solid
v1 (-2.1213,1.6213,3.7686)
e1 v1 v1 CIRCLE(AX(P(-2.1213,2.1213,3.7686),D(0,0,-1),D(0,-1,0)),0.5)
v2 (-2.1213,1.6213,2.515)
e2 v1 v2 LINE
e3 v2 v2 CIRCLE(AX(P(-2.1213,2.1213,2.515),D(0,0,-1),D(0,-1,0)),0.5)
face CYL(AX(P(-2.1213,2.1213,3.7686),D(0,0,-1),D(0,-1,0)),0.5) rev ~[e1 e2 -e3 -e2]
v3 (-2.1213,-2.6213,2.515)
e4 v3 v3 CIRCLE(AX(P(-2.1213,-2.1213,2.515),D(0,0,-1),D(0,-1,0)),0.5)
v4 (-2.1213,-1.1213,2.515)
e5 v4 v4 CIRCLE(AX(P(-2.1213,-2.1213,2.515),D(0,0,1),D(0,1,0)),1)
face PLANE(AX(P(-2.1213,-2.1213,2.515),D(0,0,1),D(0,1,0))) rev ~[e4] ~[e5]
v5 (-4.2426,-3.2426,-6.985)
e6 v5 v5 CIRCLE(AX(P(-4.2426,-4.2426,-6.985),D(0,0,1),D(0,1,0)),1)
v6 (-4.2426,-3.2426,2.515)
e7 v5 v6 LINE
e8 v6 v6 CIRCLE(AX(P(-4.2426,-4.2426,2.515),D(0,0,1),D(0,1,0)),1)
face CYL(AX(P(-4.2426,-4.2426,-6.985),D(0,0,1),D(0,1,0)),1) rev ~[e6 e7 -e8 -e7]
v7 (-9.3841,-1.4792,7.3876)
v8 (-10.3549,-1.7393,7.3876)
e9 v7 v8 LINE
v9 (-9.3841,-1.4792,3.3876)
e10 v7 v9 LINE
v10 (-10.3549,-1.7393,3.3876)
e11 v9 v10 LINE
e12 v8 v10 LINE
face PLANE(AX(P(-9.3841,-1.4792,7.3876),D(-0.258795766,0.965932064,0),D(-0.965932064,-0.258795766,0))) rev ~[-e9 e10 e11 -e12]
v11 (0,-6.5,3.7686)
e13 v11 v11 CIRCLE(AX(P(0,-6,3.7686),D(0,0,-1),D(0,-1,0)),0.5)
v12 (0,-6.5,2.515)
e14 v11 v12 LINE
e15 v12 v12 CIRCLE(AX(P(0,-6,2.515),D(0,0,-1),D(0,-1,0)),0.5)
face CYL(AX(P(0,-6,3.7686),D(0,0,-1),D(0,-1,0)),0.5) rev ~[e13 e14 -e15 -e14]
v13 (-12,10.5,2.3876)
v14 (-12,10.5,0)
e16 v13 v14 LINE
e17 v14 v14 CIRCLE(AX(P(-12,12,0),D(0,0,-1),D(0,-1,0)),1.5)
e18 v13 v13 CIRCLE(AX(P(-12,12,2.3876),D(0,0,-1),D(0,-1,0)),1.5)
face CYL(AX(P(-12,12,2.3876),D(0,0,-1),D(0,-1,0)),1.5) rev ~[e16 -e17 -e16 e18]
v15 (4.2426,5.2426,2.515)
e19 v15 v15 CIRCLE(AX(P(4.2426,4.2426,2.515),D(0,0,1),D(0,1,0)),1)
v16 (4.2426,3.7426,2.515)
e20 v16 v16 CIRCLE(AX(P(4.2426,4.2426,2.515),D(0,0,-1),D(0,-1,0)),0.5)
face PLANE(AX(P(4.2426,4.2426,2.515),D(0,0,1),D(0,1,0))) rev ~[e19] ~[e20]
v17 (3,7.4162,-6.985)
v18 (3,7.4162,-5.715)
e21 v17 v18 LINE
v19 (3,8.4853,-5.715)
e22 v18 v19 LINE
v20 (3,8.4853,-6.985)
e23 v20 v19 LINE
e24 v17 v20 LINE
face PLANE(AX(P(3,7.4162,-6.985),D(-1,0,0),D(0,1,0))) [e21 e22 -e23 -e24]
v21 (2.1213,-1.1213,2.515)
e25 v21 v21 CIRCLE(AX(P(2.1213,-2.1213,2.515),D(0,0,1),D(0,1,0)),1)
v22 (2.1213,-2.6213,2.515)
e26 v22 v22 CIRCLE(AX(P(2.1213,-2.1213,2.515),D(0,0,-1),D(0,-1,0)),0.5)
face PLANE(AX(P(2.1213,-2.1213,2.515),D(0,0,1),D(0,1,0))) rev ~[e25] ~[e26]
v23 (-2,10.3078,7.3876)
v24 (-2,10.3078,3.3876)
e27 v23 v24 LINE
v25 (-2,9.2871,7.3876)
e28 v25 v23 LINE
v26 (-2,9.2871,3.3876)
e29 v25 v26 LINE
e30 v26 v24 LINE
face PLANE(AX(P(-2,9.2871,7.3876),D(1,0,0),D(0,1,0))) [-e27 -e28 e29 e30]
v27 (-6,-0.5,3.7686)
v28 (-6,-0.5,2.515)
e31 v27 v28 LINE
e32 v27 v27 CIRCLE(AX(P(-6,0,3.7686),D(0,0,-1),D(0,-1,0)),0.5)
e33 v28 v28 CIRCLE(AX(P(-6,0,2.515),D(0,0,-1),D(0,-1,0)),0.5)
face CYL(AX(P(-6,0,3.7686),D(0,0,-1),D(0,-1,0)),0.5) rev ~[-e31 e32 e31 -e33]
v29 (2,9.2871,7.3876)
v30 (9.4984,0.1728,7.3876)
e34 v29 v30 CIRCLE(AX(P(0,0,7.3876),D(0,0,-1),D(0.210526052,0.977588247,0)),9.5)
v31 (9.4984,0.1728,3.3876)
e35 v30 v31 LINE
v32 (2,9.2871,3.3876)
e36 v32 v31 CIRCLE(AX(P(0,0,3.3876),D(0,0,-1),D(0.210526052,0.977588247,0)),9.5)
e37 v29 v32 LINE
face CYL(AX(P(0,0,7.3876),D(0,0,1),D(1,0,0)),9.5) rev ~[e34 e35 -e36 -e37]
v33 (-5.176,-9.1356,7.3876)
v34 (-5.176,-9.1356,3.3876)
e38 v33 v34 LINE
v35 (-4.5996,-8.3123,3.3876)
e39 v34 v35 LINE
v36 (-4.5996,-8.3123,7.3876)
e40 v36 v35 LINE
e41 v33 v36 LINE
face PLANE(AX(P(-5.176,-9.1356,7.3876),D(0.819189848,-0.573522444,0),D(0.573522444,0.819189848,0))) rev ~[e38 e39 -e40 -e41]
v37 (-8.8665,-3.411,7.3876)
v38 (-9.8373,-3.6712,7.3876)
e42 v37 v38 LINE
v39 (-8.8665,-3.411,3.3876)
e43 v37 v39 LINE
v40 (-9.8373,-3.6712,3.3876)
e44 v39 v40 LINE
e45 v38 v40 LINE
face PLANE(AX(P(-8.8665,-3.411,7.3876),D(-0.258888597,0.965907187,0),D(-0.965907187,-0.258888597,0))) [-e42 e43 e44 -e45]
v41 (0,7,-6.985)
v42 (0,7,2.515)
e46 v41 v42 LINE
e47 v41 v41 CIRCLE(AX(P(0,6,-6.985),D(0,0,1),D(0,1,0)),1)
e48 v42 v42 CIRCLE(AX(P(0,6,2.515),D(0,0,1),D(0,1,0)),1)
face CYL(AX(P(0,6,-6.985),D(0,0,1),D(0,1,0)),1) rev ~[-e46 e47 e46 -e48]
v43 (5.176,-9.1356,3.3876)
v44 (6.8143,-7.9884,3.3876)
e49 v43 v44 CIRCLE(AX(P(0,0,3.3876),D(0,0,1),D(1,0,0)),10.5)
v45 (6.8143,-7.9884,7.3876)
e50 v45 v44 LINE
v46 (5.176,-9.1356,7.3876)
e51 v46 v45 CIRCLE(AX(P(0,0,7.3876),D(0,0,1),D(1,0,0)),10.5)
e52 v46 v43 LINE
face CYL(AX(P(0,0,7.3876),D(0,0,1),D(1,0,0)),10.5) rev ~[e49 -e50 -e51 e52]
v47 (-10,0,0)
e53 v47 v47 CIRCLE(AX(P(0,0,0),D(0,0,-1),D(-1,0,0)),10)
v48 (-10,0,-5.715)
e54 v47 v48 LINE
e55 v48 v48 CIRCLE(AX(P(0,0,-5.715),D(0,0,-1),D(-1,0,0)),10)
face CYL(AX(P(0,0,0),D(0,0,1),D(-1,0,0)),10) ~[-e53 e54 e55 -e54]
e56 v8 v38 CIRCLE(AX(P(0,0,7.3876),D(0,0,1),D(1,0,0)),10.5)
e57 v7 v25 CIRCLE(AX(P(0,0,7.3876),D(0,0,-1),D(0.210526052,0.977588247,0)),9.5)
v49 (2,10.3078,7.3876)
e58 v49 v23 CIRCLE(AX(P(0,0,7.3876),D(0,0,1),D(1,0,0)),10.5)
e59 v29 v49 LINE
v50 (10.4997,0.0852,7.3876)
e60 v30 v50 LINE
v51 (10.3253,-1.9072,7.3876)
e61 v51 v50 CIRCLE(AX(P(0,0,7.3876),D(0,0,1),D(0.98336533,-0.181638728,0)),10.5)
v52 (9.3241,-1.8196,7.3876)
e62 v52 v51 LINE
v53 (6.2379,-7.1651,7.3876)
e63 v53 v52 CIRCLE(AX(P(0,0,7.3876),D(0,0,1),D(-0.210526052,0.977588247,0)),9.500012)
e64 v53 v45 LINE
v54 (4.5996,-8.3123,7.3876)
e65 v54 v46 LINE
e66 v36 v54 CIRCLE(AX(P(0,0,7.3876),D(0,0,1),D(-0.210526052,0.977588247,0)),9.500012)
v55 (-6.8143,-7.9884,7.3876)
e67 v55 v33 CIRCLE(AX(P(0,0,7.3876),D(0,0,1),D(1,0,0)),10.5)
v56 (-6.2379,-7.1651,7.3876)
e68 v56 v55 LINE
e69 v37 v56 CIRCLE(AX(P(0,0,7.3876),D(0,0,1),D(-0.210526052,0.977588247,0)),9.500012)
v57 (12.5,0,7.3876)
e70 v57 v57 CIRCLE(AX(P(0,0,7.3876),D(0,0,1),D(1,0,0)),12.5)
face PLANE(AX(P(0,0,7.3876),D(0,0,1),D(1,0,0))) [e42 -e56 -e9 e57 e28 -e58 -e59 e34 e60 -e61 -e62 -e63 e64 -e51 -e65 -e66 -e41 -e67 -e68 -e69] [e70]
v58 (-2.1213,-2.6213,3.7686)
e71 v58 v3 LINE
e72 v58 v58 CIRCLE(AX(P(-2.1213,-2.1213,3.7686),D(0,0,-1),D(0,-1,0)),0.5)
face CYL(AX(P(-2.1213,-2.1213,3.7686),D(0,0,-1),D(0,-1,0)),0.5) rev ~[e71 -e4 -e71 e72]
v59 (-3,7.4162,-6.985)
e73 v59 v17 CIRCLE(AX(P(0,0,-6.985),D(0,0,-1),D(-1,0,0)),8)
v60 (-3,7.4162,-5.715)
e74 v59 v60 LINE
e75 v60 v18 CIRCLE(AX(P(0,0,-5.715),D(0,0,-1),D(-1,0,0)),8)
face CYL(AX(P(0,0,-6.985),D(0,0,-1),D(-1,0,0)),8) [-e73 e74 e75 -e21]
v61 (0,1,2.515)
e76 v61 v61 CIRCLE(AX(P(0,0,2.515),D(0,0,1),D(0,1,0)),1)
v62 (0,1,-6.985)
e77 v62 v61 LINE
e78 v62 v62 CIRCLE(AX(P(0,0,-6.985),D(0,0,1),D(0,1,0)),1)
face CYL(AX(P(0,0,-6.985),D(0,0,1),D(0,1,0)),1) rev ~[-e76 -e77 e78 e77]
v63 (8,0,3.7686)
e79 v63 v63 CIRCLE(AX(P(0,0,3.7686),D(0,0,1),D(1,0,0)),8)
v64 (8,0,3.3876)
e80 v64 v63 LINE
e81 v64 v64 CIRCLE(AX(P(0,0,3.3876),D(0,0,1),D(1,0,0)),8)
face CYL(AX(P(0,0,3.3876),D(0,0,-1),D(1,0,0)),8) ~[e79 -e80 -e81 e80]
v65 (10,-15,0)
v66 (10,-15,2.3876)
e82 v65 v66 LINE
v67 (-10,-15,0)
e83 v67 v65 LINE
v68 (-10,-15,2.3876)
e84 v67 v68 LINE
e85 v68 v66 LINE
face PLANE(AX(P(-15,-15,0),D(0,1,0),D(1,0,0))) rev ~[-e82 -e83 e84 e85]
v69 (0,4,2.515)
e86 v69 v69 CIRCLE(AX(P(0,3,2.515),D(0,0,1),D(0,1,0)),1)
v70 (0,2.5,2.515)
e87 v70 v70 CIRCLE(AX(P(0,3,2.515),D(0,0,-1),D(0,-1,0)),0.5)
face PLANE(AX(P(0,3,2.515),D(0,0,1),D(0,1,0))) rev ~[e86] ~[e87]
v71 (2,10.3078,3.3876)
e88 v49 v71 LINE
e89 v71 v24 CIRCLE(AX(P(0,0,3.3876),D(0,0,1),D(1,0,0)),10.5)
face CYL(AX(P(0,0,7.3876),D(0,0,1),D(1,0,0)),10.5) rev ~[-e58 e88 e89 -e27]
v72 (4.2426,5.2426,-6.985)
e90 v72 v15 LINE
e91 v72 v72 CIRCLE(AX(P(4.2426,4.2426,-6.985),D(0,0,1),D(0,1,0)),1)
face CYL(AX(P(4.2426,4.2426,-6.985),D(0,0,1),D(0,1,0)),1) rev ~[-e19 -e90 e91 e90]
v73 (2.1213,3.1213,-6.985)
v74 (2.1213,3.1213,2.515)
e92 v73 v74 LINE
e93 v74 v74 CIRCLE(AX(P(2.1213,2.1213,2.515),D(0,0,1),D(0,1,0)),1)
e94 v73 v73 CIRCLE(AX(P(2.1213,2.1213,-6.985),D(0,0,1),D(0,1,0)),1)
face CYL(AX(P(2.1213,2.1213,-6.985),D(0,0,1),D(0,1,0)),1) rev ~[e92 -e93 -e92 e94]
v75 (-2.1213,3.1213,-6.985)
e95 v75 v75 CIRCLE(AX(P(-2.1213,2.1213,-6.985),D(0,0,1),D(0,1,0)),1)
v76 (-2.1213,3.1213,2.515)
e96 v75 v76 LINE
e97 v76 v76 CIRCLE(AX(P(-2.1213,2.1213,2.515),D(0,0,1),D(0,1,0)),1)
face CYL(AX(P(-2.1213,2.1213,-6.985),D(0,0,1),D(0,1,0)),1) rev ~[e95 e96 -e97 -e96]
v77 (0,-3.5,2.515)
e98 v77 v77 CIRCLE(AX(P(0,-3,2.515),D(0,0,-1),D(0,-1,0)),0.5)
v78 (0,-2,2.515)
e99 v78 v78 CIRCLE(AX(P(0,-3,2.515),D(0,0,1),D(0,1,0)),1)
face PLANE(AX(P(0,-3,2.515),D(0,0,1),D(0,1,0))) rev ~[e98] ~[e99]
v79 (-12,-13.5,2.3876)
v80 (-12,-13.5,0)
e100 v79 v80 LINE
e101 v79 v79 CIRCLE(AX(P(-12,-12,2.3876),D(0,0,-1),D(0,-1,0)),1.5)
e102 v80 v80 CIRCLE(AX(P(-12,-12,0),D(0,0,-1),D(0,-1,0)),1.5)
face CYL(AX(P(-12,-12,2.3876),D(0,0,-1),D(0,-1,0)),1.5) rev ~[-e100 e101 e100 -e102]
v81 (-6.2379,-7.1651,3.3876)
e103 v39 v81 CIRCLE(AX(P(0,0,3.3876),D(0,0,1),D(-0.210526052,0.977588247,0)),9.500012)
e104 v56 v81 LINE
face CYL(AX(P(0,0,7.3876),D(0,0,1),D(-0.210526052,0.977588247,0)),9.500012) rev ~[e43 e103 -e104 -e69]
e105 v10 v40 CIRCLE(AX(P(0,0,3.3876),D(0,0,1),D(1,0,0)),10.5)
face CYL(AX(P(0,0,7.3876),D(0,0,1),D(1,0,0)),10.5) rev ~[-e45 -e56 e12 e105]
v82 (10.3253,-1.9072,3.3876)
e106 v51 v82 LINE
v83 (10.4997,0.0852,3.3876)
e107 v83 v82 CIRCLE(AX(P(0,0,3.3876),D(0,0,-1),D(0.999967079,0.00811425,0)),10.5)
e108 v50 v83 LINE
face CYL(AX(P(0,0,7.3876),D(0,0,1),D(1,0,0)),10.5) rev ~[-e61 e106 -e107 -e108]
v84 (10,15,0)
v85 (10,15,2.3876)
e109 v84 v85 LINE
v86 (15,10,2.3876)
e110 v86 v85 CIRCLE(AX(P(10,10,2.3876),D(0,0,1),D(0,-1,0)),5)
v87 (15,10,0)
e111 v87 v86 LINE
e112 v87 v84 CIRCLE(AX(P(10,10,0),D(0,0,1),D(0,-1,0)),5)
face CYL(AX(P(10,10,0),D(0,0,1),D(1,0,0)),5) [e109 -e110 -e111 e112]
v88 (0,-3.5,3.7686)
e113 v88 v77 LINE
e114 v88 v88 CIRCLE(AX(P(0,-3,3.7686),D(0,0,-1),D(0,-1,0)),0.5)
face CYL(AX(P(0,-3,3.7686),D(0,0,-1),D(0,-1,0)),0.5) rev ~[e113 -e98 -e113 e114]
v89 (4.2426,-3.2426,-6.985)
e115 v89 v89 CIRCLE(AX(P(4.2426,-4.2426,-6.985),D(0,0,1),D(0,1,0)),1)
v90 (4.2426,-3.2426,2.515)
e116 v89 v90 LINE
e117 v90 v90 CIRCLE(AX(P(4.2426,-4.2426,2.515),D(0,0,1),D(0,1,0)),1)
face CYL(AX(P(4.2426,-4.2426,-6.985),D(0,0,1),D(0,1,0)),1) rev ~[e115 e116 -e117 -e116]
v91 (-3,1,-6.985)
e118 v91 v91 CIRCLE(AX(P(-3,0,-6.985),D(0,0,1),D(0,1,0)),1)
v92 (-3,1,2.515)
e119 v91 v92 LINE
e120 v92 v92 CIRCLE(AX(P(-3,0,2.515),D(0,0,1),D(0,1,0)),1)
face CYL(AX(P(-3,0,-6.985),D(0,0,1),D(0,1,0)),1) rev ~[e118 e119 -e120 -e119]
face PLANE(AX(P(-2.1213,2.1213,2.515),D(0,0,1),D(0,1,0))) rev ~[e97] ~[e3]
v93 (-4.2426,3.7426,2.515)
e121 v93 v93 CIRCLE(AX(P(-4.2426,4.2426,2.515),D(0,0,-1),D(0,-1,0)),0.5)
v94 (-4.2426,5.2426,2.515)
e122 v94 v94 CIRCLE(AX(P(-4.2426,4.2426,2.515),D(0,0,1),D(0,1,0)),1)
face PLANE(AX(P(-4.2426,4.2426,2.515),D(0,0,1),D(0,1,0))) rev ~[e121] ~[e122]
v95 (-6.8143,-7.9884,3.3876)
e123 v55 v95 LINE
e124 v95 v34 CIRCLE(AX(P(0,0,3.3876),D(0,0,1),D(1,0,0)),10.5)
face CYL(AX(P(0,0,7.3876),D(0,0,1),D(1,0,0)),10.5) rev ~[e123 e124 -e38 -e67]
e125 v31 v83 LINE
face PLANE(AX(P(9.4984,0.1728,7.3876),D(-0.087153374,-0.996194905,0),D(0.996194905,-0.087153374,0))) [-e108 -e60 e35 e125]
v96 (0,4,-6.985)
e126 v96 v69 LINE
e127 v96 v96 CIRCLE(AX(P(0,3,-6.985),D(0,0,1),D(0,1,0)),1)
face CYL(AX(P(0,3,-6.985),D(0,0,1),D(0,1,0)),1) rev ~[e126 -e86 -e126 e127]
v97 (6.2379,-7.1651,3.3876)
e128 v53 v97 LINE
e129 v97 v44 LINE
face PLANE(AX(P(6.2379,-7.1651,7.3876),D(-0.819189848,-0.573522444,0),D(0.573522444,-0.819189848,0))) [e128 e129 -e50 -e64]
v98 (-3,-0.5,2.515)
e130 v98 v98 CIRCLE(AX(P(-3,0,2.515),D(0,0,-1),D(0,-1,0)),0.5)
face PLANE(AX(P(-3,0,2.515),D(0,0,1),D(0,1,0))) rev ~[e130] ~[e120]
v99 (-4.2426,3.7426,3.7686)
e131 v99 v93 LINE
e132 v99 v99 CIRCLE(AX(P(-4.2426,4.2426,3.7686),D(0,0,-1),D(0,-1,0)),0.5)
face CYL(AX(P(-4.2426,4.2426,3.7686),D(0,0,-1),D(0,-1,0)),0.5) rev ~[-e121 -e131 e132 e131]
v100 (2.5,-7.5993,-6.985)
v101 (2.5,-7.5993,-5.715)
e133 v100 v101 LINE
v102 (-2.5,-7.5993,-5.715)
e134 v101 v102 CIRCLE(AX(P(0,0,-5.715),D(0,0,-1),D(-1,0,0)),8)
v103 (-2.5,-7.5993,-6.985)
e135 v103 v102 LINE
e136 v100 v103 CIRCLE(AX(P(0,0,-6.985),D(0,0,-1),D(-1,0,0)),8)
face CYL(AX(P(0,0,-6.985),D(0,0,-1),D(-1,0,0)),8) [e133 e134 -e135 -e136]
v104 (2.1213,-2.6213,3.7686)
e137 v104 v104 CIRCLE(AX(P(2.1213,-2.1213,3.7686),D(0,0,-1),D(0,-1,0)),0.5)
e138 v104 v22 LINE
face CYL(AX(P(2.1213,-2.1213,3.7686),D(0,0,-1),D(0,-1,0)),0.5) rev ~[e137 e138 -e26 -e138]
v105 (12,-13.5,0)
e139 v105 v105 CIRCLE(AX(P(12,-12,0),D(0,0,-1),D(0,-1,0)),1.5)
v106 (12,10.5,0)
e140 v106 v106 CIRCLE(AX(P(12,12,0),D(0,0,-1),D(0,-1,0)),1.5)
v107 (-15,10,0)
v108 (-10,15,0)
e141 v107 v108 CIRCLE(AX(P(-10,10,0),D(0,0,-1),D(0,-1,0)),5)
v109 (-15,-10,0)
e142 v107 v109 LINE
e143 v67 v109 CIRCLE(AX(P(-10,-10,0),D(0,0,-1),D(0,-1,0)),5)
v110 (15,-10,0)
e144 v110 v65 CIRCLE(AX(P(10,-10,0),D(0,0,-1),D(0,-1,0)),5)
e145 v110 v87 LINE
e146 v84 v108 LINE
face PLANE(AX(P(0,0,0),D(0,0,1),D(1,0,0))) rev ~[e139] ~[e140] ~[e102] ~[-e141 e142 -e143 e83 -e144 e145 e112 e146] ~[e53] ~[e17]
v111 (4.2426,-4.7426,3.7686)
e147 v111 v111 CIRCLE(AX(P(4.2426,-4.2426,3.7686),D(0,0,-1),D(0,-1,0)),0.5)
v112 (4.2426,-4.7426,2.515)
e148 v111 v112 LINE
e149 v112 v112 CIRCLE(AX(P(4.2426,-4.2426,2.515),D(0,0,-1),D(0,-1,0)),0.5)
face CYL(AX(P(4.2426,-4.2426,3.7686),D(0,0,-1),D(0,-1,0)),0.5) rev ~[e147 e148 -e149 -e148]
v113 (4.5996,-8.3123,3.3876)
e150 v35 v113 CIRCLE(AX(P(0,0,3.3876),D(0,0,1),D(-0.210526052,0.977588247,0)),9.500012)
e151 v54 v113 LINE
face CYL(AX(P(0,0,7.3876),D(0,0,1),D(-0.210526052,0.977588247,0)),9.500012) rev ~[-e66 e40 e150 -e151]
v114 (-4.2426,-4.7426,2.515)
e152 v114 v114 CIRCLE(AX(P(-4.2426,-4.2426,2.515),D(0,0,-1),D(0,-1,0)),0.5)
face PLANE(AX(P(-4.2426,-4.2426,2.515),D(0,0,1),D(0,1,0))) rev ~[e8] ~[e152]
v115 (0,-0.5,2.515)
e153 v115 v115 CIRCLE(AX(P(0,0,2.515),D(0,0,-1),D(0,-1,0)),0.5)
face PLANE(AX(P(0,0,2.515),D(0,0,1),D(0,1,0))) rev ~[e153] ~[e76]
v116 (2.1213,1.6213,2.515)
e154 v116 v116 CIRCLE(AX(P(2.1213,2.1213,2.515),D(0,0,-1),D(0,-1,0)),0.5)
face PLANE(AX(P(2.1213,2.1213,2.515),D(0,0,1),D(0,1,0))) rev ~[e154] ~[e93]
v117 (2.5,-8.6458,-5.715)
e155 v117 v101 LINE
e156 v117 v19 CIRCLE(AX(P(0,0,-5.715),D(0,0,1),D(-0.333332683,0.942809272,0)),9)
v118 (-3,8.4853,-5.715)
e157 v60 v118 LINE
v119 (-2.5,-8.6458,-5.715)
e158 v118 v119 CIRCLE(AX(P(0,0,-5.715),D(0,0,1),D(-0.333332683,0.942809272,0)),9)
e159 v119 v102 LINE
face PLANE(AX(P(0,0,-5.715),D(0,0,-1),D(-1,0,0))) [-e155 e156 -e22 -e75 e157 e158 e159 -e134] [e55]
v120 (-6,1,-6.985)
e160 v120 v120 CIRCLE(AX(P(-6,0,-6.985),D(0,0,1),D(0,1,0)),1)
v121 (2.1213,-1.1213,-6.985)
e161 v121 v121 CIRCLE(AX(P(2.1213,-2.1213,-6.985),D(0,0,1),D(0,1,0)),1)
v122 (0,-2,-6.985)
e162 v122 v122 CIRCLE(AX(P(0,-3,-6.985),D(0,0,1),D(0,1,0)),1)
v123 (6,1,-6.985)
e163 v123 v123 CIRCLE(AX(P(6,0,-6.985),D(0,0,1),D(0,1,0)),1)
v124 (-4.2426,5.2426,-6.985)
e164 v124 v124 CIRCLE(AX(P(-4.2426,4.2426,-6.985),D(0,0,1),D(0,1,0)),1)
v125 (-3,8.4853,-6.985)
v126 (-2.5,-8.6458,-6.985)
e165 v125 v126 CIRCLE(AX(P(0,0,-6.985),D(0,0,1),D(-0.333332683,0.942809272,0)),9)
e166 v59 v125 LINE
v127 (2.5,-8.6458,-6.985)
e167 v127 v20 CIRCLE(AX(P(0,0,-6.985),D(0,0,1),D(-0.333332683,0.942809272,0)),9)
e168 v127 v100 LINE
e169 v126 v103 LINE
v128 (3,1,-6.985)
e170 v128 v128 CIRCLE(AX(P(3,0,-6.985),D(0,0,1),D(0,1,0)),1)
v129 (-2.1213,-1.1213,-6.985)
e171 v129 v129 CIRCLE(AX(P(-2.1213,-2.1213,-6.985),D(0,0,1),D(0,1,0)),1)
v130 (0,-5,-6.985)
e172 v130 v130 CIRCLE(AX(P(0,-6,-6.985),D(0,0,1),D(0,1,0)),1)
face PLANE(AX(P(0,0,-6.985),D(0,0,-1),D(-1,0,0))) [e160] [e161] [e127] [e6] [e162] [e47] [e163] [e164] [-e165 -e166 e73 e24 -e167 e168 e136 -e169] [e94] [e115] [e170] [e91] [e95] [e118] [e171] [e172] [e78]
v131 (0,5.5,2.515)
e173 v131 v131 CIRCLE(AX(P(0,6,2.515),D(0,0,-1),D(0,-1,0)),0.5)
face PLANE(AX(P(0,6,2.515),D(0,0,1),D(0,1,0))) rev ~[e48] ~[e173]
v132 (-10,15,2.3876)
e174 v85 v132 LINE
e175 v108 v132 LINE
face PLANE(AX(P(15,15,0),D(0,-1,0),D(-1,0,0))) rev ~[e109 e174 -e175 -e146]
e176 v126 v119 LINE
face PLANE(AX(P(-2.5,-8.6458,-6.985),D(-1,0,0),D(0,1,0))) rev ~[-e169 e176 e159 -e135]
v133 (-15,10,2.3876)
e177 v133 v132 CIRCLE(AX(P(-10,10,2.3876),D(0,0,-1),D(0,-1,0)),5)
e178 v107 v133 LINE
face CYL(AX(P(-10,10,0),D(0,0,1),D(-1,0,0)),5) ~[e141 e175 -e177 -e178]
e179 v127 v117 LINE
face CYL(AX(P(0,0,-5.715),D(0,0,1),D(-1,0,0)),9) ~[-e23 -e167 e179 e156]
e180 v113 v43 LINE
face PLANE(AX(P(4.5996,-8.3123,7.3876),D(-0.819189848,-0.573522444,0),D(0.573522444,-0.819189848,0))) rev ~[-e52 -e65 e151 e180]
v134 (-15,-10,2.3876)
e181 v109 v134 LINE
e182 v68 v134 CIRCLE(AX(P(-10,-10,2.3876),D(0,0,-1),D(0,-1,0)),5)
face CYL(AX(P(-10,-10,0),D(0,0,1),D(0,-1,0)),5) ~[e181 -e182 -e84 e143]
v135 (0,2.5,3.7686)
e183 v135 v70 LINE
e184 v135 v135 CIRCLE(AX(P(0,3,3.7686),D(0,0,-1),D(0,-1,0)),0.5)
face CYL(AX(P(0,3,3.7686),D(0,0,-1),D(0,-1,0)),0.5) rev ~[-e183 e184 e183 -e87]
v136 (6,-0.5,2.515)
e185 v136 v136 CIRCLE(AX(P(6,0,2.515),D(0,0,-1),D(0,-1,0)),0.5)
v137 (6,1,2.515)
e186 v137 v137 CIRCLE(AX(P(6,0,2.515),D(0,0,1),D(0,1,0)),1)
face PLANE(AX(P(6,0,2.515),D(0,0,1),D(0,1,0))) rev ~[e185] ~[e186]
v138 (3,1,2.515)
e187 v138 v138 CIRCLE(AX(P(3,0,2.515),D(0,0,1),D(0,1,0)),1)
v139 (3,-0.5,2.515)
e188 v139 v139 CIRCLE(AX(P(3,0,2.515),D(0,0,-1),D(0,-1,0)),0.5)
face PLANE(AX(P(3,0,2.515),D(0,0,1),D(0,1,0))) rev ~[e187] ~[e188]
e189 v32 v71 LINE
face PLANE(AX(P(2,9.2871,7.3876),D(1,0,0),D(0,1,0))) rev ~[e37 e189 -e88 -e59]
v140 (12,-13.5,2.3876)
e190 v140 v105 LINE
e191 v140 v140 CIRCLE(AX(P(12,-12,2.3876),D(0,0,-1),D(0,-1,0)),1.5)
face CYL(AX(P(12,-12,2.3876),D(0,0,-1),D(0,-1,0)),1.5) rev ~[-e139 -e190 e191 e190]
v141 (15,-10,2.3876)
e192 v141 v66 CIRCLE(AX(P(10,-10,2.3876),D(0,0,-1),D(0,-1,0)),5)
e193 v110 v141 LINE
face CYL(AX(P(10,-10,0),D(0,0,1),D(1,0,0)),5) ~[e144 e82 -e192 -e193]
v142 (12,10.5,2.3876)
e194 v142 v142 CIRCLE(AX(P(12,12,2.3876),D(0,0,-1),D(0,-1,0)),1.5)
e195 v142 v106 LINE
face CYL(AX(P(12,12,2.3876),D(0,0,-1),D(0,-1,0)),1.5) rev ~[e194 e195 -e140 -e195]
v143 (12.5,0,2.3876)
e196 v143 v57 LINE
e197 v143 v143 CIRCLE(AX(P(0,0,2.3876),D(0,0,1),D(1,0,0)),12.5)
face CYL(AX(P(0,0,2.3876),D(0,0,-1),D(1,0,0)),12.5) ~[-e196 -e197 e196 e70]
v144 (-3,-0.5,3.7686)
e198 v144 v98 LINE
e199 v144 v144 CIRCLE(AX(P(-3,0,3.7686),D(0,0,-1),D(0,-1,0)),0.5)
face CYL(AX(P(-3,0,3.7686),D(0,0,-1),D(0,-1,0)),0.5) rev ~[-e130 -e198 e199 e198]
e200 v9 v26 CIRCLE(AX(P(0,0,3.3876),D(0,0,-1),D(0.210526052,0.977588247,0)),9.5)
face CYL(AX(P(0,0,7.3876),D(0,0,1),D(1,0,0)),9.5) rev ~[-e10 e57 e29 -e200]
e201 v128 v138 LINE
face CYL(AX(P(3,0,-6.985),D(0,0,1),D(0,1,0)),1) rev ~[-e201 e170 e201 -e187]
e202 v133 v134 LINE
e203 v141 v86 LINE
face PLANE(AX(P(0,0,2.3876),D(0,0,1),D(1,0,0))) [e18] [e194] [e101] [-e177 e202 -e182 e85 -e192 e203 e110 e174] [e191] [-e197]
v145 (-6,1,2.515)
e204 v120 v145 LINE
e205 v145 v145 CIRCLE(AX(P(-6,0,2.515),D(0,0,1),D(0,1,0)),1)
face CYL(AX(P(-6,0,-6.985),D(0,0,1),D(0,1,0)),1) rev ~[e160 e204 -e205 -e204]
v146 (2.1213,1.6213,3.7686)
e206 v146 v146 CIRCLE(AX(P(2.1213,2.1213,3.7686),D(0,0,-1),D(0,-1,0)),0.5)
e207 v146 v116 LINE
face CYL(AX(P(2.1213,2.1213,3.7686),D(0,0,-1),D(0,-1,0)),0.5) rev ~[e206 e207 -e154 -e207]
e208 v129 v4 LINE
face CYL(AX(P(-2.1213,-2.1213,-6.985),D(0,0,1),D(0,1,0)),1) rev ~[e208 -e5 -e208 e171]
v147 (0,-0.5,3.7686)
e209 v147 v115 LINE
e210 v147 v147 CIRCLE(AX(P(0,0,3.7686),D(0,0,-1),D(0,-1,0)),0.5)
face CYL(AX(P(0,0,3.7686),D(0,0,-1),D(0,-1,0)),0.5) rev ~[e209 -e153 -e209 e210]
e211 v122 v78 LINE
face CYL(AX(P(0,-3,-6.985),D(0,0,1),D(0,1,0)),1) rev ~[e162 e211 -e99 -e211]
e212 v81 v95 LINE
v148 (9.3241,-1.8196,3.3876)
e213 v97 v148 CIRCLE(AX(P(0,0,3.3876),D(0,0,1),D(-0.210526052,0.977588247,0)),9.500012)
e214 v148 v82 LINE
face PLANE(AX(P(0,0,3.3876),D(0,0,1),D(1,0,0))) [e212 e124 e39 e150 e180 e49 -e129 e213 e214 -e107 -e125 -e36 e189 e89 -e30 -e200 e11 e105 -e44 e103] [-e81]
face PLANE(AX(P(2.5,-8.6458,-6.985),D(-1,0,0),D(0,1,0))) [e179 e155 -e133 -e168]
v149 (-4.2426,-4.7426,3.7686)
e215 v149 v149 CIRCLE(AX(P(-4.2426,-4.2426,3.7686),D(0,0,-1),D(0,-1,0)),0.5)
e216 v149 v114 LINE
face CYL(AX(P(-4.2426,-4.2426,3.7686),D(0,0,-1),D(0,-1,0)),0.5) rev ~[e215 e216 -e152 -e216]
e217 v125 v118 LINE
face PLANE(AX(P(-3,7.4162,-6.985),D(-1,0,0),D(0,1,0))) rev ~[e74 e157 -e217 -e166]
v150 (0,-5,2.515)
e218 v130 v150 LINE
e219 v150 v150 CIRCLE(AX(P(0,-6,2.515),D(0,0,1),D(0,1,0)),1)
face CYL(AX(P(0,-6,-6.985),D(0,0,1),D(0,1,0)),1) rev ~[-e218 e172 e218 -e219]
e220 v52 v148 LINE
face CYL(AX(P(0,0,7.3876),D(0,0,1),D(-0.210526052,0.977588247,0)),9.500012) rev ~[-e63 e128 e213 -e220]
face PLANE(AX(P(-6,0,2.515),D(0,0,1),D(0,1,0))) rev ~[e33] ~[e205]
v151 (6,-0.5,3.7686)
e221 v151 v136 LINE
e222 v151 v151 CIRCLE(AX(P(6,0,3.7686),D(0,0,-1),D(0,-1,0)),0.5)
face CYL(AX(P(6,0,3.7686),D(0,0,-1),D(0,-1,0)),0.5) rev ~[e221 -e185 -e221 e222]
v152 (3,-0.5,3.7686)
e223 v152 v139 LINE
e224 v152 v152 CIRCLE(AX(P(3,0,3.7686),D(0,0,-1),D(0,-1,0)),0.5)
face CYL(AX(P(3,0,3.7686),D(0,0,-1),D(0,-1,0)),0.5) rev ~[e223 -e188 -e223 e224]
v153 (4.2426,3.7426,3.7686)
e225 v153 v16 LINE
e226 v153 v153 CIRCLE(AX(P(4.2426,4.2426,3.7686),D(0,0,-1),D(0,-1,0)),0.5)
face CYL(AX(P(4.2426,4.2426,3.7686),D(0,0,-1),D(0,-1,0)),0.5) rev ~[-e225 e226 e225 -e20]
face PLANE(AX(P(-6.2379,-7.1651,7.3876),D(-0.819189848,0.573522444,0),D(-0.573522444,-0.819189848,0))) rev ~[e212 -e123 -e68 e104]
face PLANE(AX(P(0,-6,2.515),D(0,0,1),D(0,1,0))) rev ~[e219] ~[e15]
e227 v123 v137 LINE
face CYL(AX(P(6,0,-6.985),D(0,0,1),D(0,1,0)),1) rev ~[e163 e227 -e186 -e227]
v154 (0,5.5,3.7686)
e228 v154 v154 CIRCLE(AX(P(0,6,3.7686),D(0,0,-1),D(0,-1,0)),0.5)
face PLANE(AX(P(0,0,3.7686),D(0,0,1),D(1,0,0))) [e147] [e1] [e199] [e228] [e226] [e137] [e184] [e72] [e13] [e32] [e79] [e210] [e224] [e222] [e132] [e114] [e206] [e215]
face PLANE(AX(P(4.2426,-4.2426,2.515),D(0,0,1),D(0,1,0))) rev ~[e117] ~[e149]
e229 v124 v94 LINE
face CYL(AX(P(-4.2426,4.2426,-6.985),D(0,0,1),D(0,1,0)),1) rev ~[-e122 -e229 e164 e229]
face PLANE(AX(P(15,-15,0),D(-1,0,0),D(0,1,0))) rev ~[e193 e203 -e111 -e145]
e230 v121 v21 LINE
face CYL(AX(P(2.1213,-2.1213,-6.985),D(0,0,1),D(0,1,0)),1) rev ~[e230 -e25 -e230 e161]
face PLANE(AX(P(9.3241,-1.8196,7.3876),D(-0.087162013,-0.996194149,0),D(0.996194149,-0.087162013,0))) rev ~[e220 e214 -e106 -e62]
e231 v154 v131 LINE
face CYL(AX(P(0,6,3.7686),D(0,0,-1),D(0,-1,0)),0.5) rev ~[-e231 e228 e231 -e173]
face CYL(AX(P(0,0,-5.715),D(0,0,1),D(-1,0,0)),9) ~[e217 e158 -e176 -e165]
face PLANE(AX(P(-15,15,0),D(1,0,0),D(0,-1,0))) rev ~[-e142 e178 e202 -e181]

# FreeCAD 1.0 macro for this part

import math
import FreeCAD as App
import Part
import Sketcher

V = App.Vector
Q = App.Units.Quantity


def edges_at(feature, points):
    """Names of the edges that pass closest to the given points."""
    edges = feature.Shape.Edges
    near = lambda p: min(range(len(edges)), key=lambda i: edges[i].distToShape(Part.Vertex(*p))[0])
    return sorted({f"Edge{near(p) + 1}" for p in points})


def add_polygon(sketch, points):
    """Adds a closed chain of lines whose ends are joined by coincident constraints."""
    first, n = sketch.GeometryCount, len(points)
    for a, b in zip(points, points[1:] + points[:1]):
        sketch.addGeometry(Part.LineSegment(App.Vector(*a, 0), App.Vector(*b, 0)), False)
    for i in range(n):
        sketch.addConstraint(Sketcher.Constraint("Coincident", first + i, 2, first + (i + 1) % n, 1))

doc = App.newDocument("Part")
body = doc.addObject("PartDesign::Body", "Body")

sketch1 = body.newObject("Sketcher::SketchObject", "Sketch")
sketch1.AttachmentSupport = (doc.getObject("XY_Plane"), [""])
sketch1.MapMode = "FlatFace"
add_polygon(sketch1, [(15, -15), (15, 15), (-15, 15), (-15, -15)])
sketch1.addConstraint([
    Sketcher.Constraint("Vertical", 0),
    Sketcher.Constraint("Horizontal", 1),
    Sketcher.Constraint("Vertical", 2),
    Sketcher.Constraint("Horizontal", 3),
    Sketcher.Constraint("Symmetric", 0, 2, 2, 2, -1, 1),
    Sketcher.Constraint("Equal", 3, 0),
    Sketcher.Constraint("DistanceX", 1, 2, 1, 1, Q("30 mm")),
])
pad1 = body.newObject("PartDesign::Pad", "Pad")
pad1.Profile = sketch1
pad1.Length = 2.3876
doc.recompute()

fillet = body.newObject("PartDesign::Fillet", "Fillet")
fillet.Base = (pad1, edges_at(pad1, [
    (15, 15, 1.194),
    (-15, 15, 1.194),
    (-15, -15, 1.194),
    (15, -15, 1.194),
]))
fillet.Radius = 5

sketch2 = body.newObject("Sketcher::SketchObject", "Sketch001")
sketch2.AttachmentSupport = (doc.getObject("XY_Plane"), [""])
sketch2.MapMode = "FlatFace"
sketch2.AttachmentOffset = App.Placement(V(0, 0, 2.3876), App.Rotation())
sketch2.addGeometry([
    Part.Circle(V(-12, 12, 0), V(0, 0, 1), 1.5),
    Part.Circle(V(12, 12, 0), V(0, 0, 1), 1.5),
    Part.Circle(V(12, -12, 0), V(0, 0, 1), 1.5),
    Part.Circle(V(-12, -12, 0), V(0, 0, 1), 1.5),
], False)
sketch2.addConstraint([
    Sketcher.Constraint("Equal", 0, 1),
    Sketcher.Constraint("Equal", 1, 2),
    Sketcher.Constraint("Equal", 2, 3),
    Sketcher.Constraint("Symmetric", 0, 3, 2, 3, -1, 1),
    Sketcher.Constraint("Symmetric", 1, 3, 3, 3, -1, 1),
    Sketcher.Constraint("Symmetric", 0, 3, 1, 3, -2),
    Sketcher.Constraint("Diameter", 0, Q("3 mm")),
    Sketcher.Constraint("DistanceX", 0, 3, -1, 1, Q("12 mm")),
    Sketcher.Constraint("DistanceY", -1, 1, 0, 3, Q("12 mm")),
])
doc.recompute()
hole = body.newObject("PartDesign::Hole", "Hole")
hole.Profile = sketch2
hole.ThreadType = "None"
hole.Diameter = 3
hole.DepthType = "ThroughAll"

sketch3 = body.newObject("Sketcher::SketchObject", "Sketch002")
sketch3.AttachmentSupport = (doc.getObject("XY_Plane"), [""])
sketch3.MapMode = "FlatFace"
sketch3.AttachmentOffset = App.Placement(V(0, 0, 2.3876), App.Rotation())
sketch3.addGeometry(Part.Circle(V(0, 0, 0), V(0, 0, 1), 12), False)
sketch3.addConstraint([
    Sketcher.Constraint("Coincident", 0, 3, -1, 1),
    Sketcher.Constraint("Diameter", 0, Q("25 mm")),
])
pad2 = body.newObject("PartDesign::Pad", "Pad001")
pad2.Profile = sketch3
pad2.Length = 5

sketch4 = body.newObject("Sketcher::SketchObject", "Sketch003")
sketch4.AttachmentSupport = (doc.getObject("XY_Plane"), [""])
sketch4.MapMode = "FlatFace"
sketch4.AttachmentOffset = App.Placement(V(0, 0, 7.3876), App.Rotation())
sketch4.addGeometry(Part.Circle(V(0, 0, 0), V(0, 0, 1), 10), False)
sketch4.addConstraint([
    Sketcher.Constraint("Coincident", 0, 3, -1, 1),
    Sketcher.Constraint("Diameter", 0, Q("19 mm")),
])
pocket1 = body.newObject("PartDesign::Pocket", "Pocket")
pocket1.Profile = sketch4
pocket1.Length = 4

sketch5 = body.newObject("Sketcher::SketchObject", "Sketch004")
sketch5.AttachmentSupport = (doc.getObject("XY_Plane"), [""])
sketch5.MapMode = "FlatFace"
sketch5.AttachmentOffset = App.Placement(V(0, 0, 7.3876), App.Rotation())
sketch5.addGeometry([
    Part.ArcOfCircle(Part.Circle(V(0, 0, 0), V(0, 0, 1), 9.5), math.radians(78), math.radians(102)),
    Part.LineSegment(V(2, 9.3, 0), V(2, 10.3, 0)),
    Part.ArcOfCircle(Part.Circle(V(0, 0, 0), V(0, 0, 1), 10.5), math.radians(79), math.radians(101)),
    Part.LineSegment(V(-2, 10.3, 0), V(-2, 9.3, 0)),
], False)
sketch5.addConstraint([
    Sketcher.Constraint("Coincident", 0, 1, 1, 1),
    Sketcher.Constraint("Coincident", 1, 2, 2, 1),
    Sketcher.Constraint("Coincident", 2, 2, 3, 1),
    Sketcher.Constraint("Coincident", 3, 2, 0, 2),
    Sketcher.Constraint("Vertical", 1),
    Sketcher.Constraint("Vertical", 3),
    Sketcher.Constraint("Coincident", 0, 3, -1, 1),
    Sketcher.Constraint("Coincident", 2, 3, -1, 1),
    Sketcher.Constraint("Horizontal", 1, 2, 2, 2),
    Sketcher.Constraint("DistanceX", -1, 1, 0, 1, Q("2 mm")),
    Sketcher.Constraint("Radius", 0, Q("9.5 mm")),
    Sketcher.Constraint("Radius", 2, Q("10.5 mm")),
])
pocket2 = body.newObject("PartDesign::Pocket", "Pocket001")
pocket2.Profile = sketch5
pocket2.Length = 4

sketch6 = body.newObject("Sketcher::SketchObject", "Sketch005")
sketch6.AttachmentSupport = (doc.getObject("XY_Plane"), [""])
sketch6.MapMode = "FlatFace"
sketch6.AttachmentOffset = App.Placement(V(0, 0, 7.3876), App.Rotation())
sketch6.addGeometry([
    Part.LineSegment(V(2, 9.3, 0), V(2, 10.3, 0)),
    Part.ArcOfCircle(Part.Circle(V(0, 0, 0), V(0, 0, 1), 10.5), math.radians(79), math.radians(101)),
    Part.LineSegment(V(-2, 10.3, 0), V(-2, 9.3, 0)),
    Part.ArcOfCircle(Part.Circle(V(0, 0, 0), V(0, 0, 1), 9.5), math.radians(102), math.radians(189)),
    Part.LineSegment(V(-9.4, -1.5, 0), V(-10.4, -1.7, 0)),
    Part.ArcOfCircle(Part.Circle(V(0, 0, 0), V(0, 0, 1), 10.5), math.radians(-170.47), math.radians(-159.53)),
    Part.LineSegment(V(-9.8, -3.7, 0), V(-8.9, -3.4, 0)),
    Part.ArcOfCircle(Part.Circle(V(0, 0, 0), V(0, 0, 1), 9.5), math.radians(-159), math.radians(-131)),
    Part.LineSegment(V(-6.2, -7.2, 0), V(-6.8, -8, 0)),
    Part.ArcOfCircle(Part.Circle(V(0, 0, 0), V(0, 0, 1), 10.5), math.radians(-130.46), math.radians(-119.53)),
    Part.LineSegment(V(-5.2, -9.1, 0), V(-4.6, -8.3, 0)),
    Part.ArcOfCircle(Part.Circle(V(0, 0, 0), V(0, 0, 1), 9.5), math.radians(-119), math.radians(-61)),
    Part.LineSegment(V(4.6, -8.3, 0), V(5.2, -9.1, 0)),
    Part.ArcOfCircle(Part.Circle(V(0, 0, 0), V(0, 0, 1), 10.5), math.radians(-60.47), math.radians(-49.54)),
    Part.LineSegment(V(6.8, -8, 0), V(6.2, -7.2, 0)),
    Part.ArcOfCircle(Part.Circle(V(0, 0, 0), V(0, 0, 1), 9.5), math.radians(-49), math.radians(-11)),
    Part.LineSegment(V(9.3, -1.8, 0), V(10.3, -1.9, 0)),
    Part.ArcOfCircle(Part.Circle(V(0, 0, 0), V(0, 0, 1), 10.5), math.radians(-10.47), math.radians(0.46)),
    Part.LineSegment(V(10.5, 0.1, 0), V(9.5, 0.2, 0)),
    Part.ArcOfCircle(Part.Circle(V(0, 0, 0), V(0, 0, 1), 9.5), math.radians(1), math.radians(78)),
], False)
sketch6.addConstraint([
    Sketcher.Constraint("Coincident", 0, 2, 1, 1),
    Sketcher.Constraint("Coincident", 1, 2, 2, 1),
    Sketcher.Constraint("Coincident", 2, 2, 3, 1),
    Sketcher.Constraint("Coincident", 3, 2, 4, 1),
    Sketcher.Constraint("Coincident", 4, 2, 5, 1),
    Sketcher.Constraint("Coincident", 5, 2, 6, 1),
    Sketcher.Constraint("Coincident", 6, 2, 7, 1),
    Sketcher.Constraint("Coincident", 7, 2, 8, 1),
    Sketcher.Constraint("Coincident", 8, 2, 9, 1),
    Sketcher.Constraint("Coincident", 9, 2, 10, 1),
    Sketcher.Constraint("Coincident", 10, 2, 11, 1),
    Sketcher.Constraint("Coincident", 11, 2, 12, 1),
    Sketcher.Constraint("Coincident", 12, 2, 13, 1),
    Sketcher.Constraint("Coincident", 13, 2, 14, 1),
    Sketcher.Constraint("Coincident", 14, 2, 15, 1),
    Sketcher.Constraint("Coincident", 15, 2, 16, 1),
    Sketcher.Constraint("Coincident", 16, 2, 17, 1),
    Sketcher.Constraint("Coincident", 17, 2, 18, 1),
    Sketcher.Constraint("Coincident", 18, 2, 19, 1),
    Sketcher.Constraint("Coincident", 19, 2, 0, 1),
    Sketcher.Constraint("Vertical", 0),
    Sketcher.Constraint("Vertical", 2),
    Sketcher.Constraint("Coincident", 1, 3, -1, 1),
    Sketcher.Constraint("Coincident", 3, 3, -1, 1),
    Sketcher.Constraint("Coincident", 5, 3, -1, 1),
    Sketcher.Constraint("Coincident", 7, 3, -1, 1),
    Sketcher.Constraint("Coincident", 9, 3, -1, 1),
    Sketcher.Constraint("Coincident", 11, 3, -1, 1),
    Sketcher.Constraint("Coincident", 13, 3, -1, 1),
    Sketcher.Constraint("Coincident", 15, 3, -1, 1),
    Sketcher.Constraint("Coincident", 17, 3, -1, 1),
    Sketcher.Constraint("Coincident", 19, 3, -1, 1),
    Sketcher.Constraint("Equal", 1, 5),
    Sketcher.Constraint("Equal", 3, 7),
    Sketcher.Constraint("Equal", 5, 9),
    Sketcher.Constraint("Equal", 7, 11),
    Sketcher.Constraint("Equal", 9, 13),
    Sketcher.Constraint("Equal", 11, 15),
    Sketcher.Constraint("Equal", 13, 17),
    Sketcher.Constraint("Equal", 15, 19),
    Sketcher.Constraint("Parallel", 4, 6),
    Sketcher.Constraint("Parallel", 8, 10),
    Sketcher.Constraint("Parallel", 12, 14),
    Sketcher.Constraint("Parallel", 16, 18),
    Sketcher.Constraint("Horizontal", 0, 2, 1, 2),
    Sketcher.Constraint("Horizontal", 10, 2, 11, 2),
    Sketcher.Constraint("Horizontal", 9, 2, 12, 2),
    Sketcher.Constraint("Horizontal", 8, 2, 13, 2),
    Sketcher.Constraint("Equal", 4, 6),
    Sketcher.Constraint("Equal", 6, 8),
    Sketcher.Constraint("Equal", 8, 10),
    Sketcher.Constraint("Equal", 14, 16),
    Sketcher.Constraint("Equal", 16, 18),
    Sketcher.Constraint("DistanceX", -1, 1, 0, 2, Q("2 mm")),
    Sketcher.Constraint("Radius", 1, Q("10.5 mm")),
    Sketcher.Constraint("Radius", 3, Q("9.5 mm")),
    Sketcher.Constraint("Angle", 16, Q("-5.0004 deg")),
    Sketcher.Constraint("DistanceX", 11, 2, 17, 2, Q("5.9 mm")),
    Sketcher.Constraint("DistanceY", 4, 2, 3, 2, Q("0.26 mm")),
    Sketcher.Constraint("DistanceY", 16, 2, 18, 2, Q("2.08 mm")),
])
pocket3 = body.newObject("PartDesign::Pocket", "Pocket002")
pocket3.Profile = sketch6
pocket3.Length = 4

sketch7 = body.newObject("Sketcher::SketchObject", "Sketch006")
sketch7.AttachmentSupport = (doc.getObject("XY_Plane"), [""])
sketch7.MapMode = "FlatFace"
sketch7.AttachmentOffset = App.Placement(V(0, 0, 3.3876), App.Rotation())
sketch7.addGeometry(Part.Circle(V(0, 0, 0), V(0, 0, 1), 8), False)
sketch7.addConstraint([
    Sketcher.Constraint("Coincident", 0, 3, -1, 1),
    Sketcher.Constraint("Diameter", 0, Q("16 mm")),
])
pad3 = body.newObject("PartDesign::Pad", "Pad002")
pad3.Profile = sketch7
pad3.Length = 0.381

sketch8 = body.newObject("Sketcher::SketchObject", "Sketch007")
sketch8.AttachmentSupport = (doc.getObject("XY_Plane"), [""])
sketch8.MapMode = "FlatFace"
sketch8.addGeometry(Part.Circle(V(0, 0, 0), V(0, 0, 1), 10), False)
sketch8.addConstraint([
    Sketcher.Constraint("Coincident", 0, 3, -1, 1),
    Sketcher.Constraint("Diameter", 0, Q("20 mm")),
])
pad4 = body.newObject("PartDesign::Pad", "Pad003")
pad4.Profile = sketch8
pad4.Length = 5.715
pad4.Reversed = True

sketch9 = body.newObject("Sketcher::SketchObject", "Sketch008")
sketch9.AttachmentSupport = (doc.getObject("XY_Plane"), [""])
sketch9.MapMode = "FlatFace"
sketch9.AttachmentOffset = App.Placement(V(0, 0, -5.715), App.Rotation())
sketch9.addGeometry(Part.Circle(V(0, 0, 0), V(0, 0, 1), 9), False)
sketch9.addConstraint([
    Sketcher.Constraint("Coincident", 0, 3, -1, 1),
    Sketcher.Constraint("Diameter", 0, Q("18 mm")),
])
pad5 = body.newObject("PartDesign::Pad", "Pad004")
pad5.Profile = sketch9
pad5.Length = 1.27
pad5.Reversed = True

sketch10 = body.newObject("Sketcher::SketchObject", "Sketch009")
sketch10.AttachmentSupport = (doc.getObject("XY_Plane"), [""])
sketch10.MapMode = "FlatFace"
sketch10.AttachmentOffset = App.Placement(V(0, 0, -6.985), App.Rotation())
sketch10.addGeometry([
    Part.LineSegment(V(-3, 7.4, 0), V(-3, 8.5, 0)),
    Part.ArcOfCircle(Part.Circle(V(0, 0, 0), V(0, 0, 1), 9), math.radians(71), math.radians(109)),
    Part.LineSegment(V(3, 8.5, 0), V(3, 7.4, 0)),
    Part.ArcOfCircle(Part.Circle(V(0, 0, 0), V(0, 0, 1), 8), math.radians(68), math.radians(112)),
], False)
sketch10.addConstraint([
    Sketcher.Constraint("Coincident", 0, 2, 1, 2),
    Sketcher.Constraint("Coincident", 1, 1, 2, 1),
    Sketcher.Constraint("Coincident", 2, 2, 3, 1),
    Sketcher.Constraint("Coincident", 3, 2, 0, 1),
    Sketcher.Constraint("Vertical", 0),
    Sketcher.Constraint("Vertical", 2),
    Sketcher.Constraint("Coincident", 1, 3, -1, 1),
    Sketcher.Constraint("Coincident", 3, 3, -1, 1),
    Sketcher.Constraint("Horizontal", 0, 2, 1, 1),
    Sketcher.Constraint("Radius", 1, Q("9 mm")),
    Sketcher.Constraint("Radius", 3, Q("8 mm")),
    Sketcher.Constraint("DistanceX", 0, 2, 1, 1, Q("6 mm")),
])
pocket4 = body.newObject("PartDesign::Pocket", "Pocket003")
pocket4.Profile = sketch10
pocket4.Length = 1.27
pocket4.Reversed = True

sketch11 = body.newObject("Sketcher::SketchObject", "Sketch010")
sketch11.AttachmentSupport = (doc.getObject("XY_Plane"), [""])
sketch11.MapMode = "FlatFace"
sketch11.AttachmentOffset = App.Placement(V(0, 0, 3.7686), App.Rotation())
sketch11.addGeometry([
    Part.Circle(V(0, 0, 0), V(0, 0, 1), 0.5),
    Part.Circle(V(0, 3, 0), V(0, 0, 1), 0.5),
    Part.Circle(V(-2.1, 2.1, 0), V(0, 0, 1), 0.5),
    Part.Circle(V(-3, 0, 0), V(0, 0, 1), 0.5),
    Part.Circle(V(-2.1, -2.1, 0), V(0, 0, 1), 0.5),
    Part.Circle(V(0, -3, 0), V(0, 0, 1), 0.5),
    Part.Circle(V(2.1, -2.1, 0), V(0, 0, 1), 0.5),
    Part.Circle(V(3, 0, 0), V(0, 0, 1), 0.5),
    Part.Circle(V(2.1, 2.1, 0), V(0, 0, 1), 0.5),
    Part.Circle(V(0, 6, 0), V(0, 0, 1), 0.5),
    Part.Circle(V(4.2, 4.2, 0), V(0, 0, 1), 0.5),
    Part.Circle(V(6, 0, 0), V(0, 0, 1), 0.5),
    Part.Circle(V(4.2, -4.2, 0), V(0, 0, 1), 0.5),
    Part.Circle(V(0, -6, 0), V(0, 0, 1), 0.5),
    Part.Circle(V(-4.2, -4.2, 0), V(0, 0, 1), 0.5),
    Part.Circle(V(-6, 0, 0), V(0, 0, 1), 0.5),
    Part.Circle(V(-4.2, 4.2, 0), V(0, 0, 1), 0.5),
], False)
sketch11.addConstraint([
    Sketcher.Constraint("Coincident", 0, 3, -1, 1),
    Sketcher.Constraint("Equal", 0, 1),
    Sketcher.Constraint("Equal", 1, 2),
    Sketcher.Constraint("Equal", 2, 3),
    Sketcher.Constraint("Equal", 3, 4),
    Sketcher.Constraint("Equal", 4, 5),
    Sketcher.Constraint("Equal", 5, 6),
    Sketcher.Constraint("Equal", 6, 7),
    Sketcher.Constraint("Equal", 7, 8),
    Sketcher.Constraint("Equal", 8, 9),
    Sketcher.Constraint("Equal", 9, 10),
    Sketcher.Constraint("Equal", 10, 11),
    Sketcher.Constraint("Equal", 11, 12),
    Sketcher.Constraint("Equal", 12, 13),
    Sketcher.Constraint("Equal", 13, 14),
    Sketcher.Constraint("Equal", 14, 15),
    Sketcher.Constraint("Equal", 15, 16),
    Sketcher.Constraint("Symmetric", 1, 3, 5, 3, -1, 1),
    Sketcher.Constraint("Symmetric", 2, 3, 6, 3, -1, 1),
    Sketcher.Constraint("Symmetric", 3, 3, 7, 3, -1, 1),
    Sketcher.Constraint("Symmetric", 4, 3, 8, 3, -1, 1),
    Sketcher.Constraint("Symmetric", 9, 3, 13, 3, -1, 1),
    Sketcher.Constraint("Symmetric", 10, 3, 14, 3, -1, 1),
    Sketcher.Constraint("Symmetric", 11, 3, 15, 3, -1, 1),
    Sketcher.Constraint("Symmetric", 12, 3, 16, 3, -1, 1),
    Sketcher.Constraint("Symmetric", 4, 3, 6, 3, -2),
    Sketcher.Constraint("Symmetric", 12, 3, 14, 3, -2),
    Sketcher.Constraint("PointOnObject", 1, 3, -2),
    Sketcher.Constraint("PointOnObject", 3, 3, -1),
    Sketcher.Constraint("PointOnObject", 9, 3, -2),
    Sketcher.Constraint("PointOnObject", 11, 3, -1),
    Sketcher.Constraint("Diameter", 0, Q("1 mm")),
    Sketcher.Constraint("DistanceY", -1, 1, 1, 3, Q("3 mm")),
    Sketcher.Constraint("DistanceX", 3, 3, -1, 1, Q("3 mm")),
    Sketcher.Constraint("DistanceY", -1, 1, 9, 3, Q("6 mm")),
    Sketcher.Constraint("DistanceX", -1, 1, 11, 3, Q("6 mm")),
    Sketcher.Constraint("DistanceX", 2, 3, -1, 1, Q("2.1213 mm")),
    Sketcher.Constraint("DistanceY", -1, 1, 2, 3, Q("2.1213 mm")),
    Sketcher.Constraint("DistanceX", -1, 1, 10, 3, Q("4.2426 mm")),
    Sketcher.Constraint("DistanceY", -1, 1, 10, 3, Q("4.2426 mm")),
])
doc.recompute()
hole2 = body.newObject("PartDesign::Hole", "Hole001")
hole2.Profile = sketch11
hole2.ThreadType = "None"
hole2.Diameter = 1
hole2.DepthType = "ThroughAll"

sketch12 = body.newObject("Sketcher::SketchObject", "Sketch011")
sketch12.AttachmentSupport = (doc.getObject("XY_Plane"), [""])
sketch12.MapMode = "FlatFace"
sketch12.AttachmentOffset = App.Placement(V(0, 0, -6.985), App.Rotation())
sketch12.addGeometry([
    Part.Circle(V(0, 3, 0), V(0, 0, 1), 1),
    Part.Circle(V(2.1, 2.1, 0), V(0, 0, 1), 1),
    Part.Circle(V(3, 0, 0), V(0, 0, 1), 1),
    Part.Circle(V(2.1, -2.1, 0), V(0, 0, 1), 1),
    Part.Circle(V(0, 0, 0), V(0, 0, 1), 1),
    Part.Circle(V(-2.1, 2.1, 0), V(0, 0, 1), 1),
    Part.Circle(V(-3, 0, 0), V(0, 0, 1), 1),
    Part.Circle(V(-2.1, -2.1, 0), V(0, 0, 1), 1),
    Part.Circle(V(0, -3, 0), V(0, 0, 1), 1),
    Part.Circle(V(4.2, 4.2, 0), V(0, 0, 1), 1),
    Part.Circle(V(0, 6, 0), V(0, 0, 1), 1),
    Part.Circle(V(-4.2, 4.2, 0), V(0, 0, 1), 1),
    Part.Circle(V(-6, 0, 0), V(0, 0, 1), 1),
    Part.Circle(V(-4.2, -4.2, 0), V(0, 0, 1), 1),
    Part.Circle(V(0, -6, 0), V(0, 0, 1), 1),
    Part.Circle(V(4.2, -4.2, 0), V(0, 0, 1), 1),
    Part.Circle(V(6, 0, 0), V(0, 0, 1), 1),
], False)
sketch12.addConstraint([
    Sketcher.Constraint("Coincident", 4, 3, -1, 1),
    Sketcher.Constraint("Equal", 0, 1),
    Sketcher.Constraint("Equal", 1, 2),
    Sketcher.Constraint("Equal", 2, 3),
    Sketcher.Constraint("Equal", 3, 4),
    Sketcher.Constraint("Equal", 4, 5),
    Sketcher.Constraint("Equal", 5, 6),
    Sketcher.Constraint("Equal", 6, 7),
    Sketcher.Constraint("Equal", 7, 8),
    Sketcher.Constraint("Equal", 8, 9),
    Sketcher.Constraint("Equal", 9, 10),
    Sketcher.Constraint("Equal", 10, 11),
    Sketcher.Constraint("Equal", 11, 12),
    Sketcher.Constraint("Equal", 12, 13),
    Sketcher.Constraint("Equal", 13, 14),
    Sketcher.Constraint("Equal", 14, 15),
    Sketcher.Constraint("Equal", 15, 16),
    Sketcher.Constraint("Symmetric", 3, 3, 5, 3, -1, 1),
    Sketcher.Constraint("Symmetric", 2, 3, 6, 3, -1, 1),
    Sketcher.Constraint("Symmetric", 1, 3, 7, 3, -1, 1),
    Sketcher.Constraint("Symmetric", 0, 3, 8, 3, -1, 1),
    Sketcher.Constraint("Symmetric", 9, 3, 13, 3, -1, 1),
    Sketcher.Constraint("Symmetric", 10, 3, 14, 3, -1, 1),
    Sketcher.Constraint("Symmetric", 11, 3, 15, 3, -1, 1),
    Sketcher.Constraint("Symmetric", 12, 3, 16, 3, -1, 1),
    Sketcher.Constraint("Symmetric", 1, 3, 5, 3, -2),
    Sketcher.Constraint("Symmetric", 9, 3, 11, 3, -2),
    Sketcher.Constraint("PointOnObject", 0, 3, -2),
    Sketcher.Constraint("PointOnObject", 2, 3, -1),
    Sketcher.Constraint("PointOnObject", 10, 3, -2),
    Sketcher.Constraint("PointOnObject", 12, 3, -1),
    Sketcher.Constraint("Diameter", 0, Q("2 mm")),
    Sketcher.Constraint("DistanceY", -1, 1, 0, 3, Q("3 mm")),
    Sketcher.Constraint("DistanceX", -1, 1, 2, 3, Q("3 mm")),
    Sketcher.Constraint("DistanceY", -1, 1, 10, 3, Q("6 mm")),
    Sketcher.Constraint("DistanceX", 12, 3, -1, 1, Q("6 mm")),
    Sketcher.Constraint("DistanceY", 3, 3, 9, 3, Q("6.364 mm")),
    Sketcher.Constraint("DistanceX", -1, 1, 1, 3, Q("2.1213 mm")),
    Sketcher.Constraint("DistanceY", -1, 1, 1, 3, Q("2.1213 mm")),
    Sketcher.Constraint("DistanceX", -1, 1, 9, 3, Q("4.2426 mm")),
])
doc.recompute()
hole3 = body.newObject("PartDesign::Hole", "Hole002")
hole3.Profile = sketch12
hole3.ThreadType = "None"
hole3.Diameter = 2
hole3.DepthType = "Dimension"
hole3.Depth = 9.5
hole3.DrillPoint = "Flat"
hole3.Reversed = True

sketch13 = body.newObject("Sketcher::SketchObject", "Sketch012")
sketch13.AttachmentSupport = (doc.getObject("XY_Plane"), [""])
sketch13.MapMode = "FlatFace"
sketch13.AttachmentOffset = App.Placement(V(0, 0, -6.985), App.Rotation())
sketch13.addGeometry([
    Part.LineSegment(V(2.5, -7.6, 0), V(2.5, -8.6, 0)),
    Part.ArcOfCircle(Part.Circle(V(0, 0, 0), V(0, 0, 1), 9), math.radians(-106), math.radians(-74)),
    Part.LineSegment(V(-2.5, -8.6, 0), V(-2.5, -7.6, 0)),
    Part.ArcOfCircle(Part.Circle(V(0, 0, 0), V(0, 0, 1), 8), math.radians(-108), math.radians(-72)),
], False)
sketch13.addConstraint([
    Sketcher.Constraint("Coincident", 0, 2, 1, 2),
    Sketcher.Constraint("Coincident", 1, 1, 2, 1),
    Sketcher.Constraint("Coincident", 2, 2, 3, 1),
    Sketcher.Constraint("Coincident", 3, 2, 0, 1),
    Sketcher.Constraint("Vertical", 0),
    Sketcher.Constraint("Vertical", 2),
    Sketcher.Constraint("Coincident", 1, 3, -1, 1),
    Sketcher.Constraint("Coincident", 3, 3, -1, 1),
    Sketcher.Constraint("Horizontal", 0, 2, 1, 1),
    Sketcher.Constraint("Radius", 1, Q("9 mm")),
    Sketcher.Constraint("Radius", 3, Q("8 mm")),
    Sketcher.Constraint("DistanceX", 1, 1, 0, 2, Q("5 mm")),
])
pocket5 = body.newObject("PartDesign::Pocket", "Pocket004")
pocket5.Profile = sketch13
pocket5.Length = 1.27
pocket5.Reversed = True

doc.recompute()
